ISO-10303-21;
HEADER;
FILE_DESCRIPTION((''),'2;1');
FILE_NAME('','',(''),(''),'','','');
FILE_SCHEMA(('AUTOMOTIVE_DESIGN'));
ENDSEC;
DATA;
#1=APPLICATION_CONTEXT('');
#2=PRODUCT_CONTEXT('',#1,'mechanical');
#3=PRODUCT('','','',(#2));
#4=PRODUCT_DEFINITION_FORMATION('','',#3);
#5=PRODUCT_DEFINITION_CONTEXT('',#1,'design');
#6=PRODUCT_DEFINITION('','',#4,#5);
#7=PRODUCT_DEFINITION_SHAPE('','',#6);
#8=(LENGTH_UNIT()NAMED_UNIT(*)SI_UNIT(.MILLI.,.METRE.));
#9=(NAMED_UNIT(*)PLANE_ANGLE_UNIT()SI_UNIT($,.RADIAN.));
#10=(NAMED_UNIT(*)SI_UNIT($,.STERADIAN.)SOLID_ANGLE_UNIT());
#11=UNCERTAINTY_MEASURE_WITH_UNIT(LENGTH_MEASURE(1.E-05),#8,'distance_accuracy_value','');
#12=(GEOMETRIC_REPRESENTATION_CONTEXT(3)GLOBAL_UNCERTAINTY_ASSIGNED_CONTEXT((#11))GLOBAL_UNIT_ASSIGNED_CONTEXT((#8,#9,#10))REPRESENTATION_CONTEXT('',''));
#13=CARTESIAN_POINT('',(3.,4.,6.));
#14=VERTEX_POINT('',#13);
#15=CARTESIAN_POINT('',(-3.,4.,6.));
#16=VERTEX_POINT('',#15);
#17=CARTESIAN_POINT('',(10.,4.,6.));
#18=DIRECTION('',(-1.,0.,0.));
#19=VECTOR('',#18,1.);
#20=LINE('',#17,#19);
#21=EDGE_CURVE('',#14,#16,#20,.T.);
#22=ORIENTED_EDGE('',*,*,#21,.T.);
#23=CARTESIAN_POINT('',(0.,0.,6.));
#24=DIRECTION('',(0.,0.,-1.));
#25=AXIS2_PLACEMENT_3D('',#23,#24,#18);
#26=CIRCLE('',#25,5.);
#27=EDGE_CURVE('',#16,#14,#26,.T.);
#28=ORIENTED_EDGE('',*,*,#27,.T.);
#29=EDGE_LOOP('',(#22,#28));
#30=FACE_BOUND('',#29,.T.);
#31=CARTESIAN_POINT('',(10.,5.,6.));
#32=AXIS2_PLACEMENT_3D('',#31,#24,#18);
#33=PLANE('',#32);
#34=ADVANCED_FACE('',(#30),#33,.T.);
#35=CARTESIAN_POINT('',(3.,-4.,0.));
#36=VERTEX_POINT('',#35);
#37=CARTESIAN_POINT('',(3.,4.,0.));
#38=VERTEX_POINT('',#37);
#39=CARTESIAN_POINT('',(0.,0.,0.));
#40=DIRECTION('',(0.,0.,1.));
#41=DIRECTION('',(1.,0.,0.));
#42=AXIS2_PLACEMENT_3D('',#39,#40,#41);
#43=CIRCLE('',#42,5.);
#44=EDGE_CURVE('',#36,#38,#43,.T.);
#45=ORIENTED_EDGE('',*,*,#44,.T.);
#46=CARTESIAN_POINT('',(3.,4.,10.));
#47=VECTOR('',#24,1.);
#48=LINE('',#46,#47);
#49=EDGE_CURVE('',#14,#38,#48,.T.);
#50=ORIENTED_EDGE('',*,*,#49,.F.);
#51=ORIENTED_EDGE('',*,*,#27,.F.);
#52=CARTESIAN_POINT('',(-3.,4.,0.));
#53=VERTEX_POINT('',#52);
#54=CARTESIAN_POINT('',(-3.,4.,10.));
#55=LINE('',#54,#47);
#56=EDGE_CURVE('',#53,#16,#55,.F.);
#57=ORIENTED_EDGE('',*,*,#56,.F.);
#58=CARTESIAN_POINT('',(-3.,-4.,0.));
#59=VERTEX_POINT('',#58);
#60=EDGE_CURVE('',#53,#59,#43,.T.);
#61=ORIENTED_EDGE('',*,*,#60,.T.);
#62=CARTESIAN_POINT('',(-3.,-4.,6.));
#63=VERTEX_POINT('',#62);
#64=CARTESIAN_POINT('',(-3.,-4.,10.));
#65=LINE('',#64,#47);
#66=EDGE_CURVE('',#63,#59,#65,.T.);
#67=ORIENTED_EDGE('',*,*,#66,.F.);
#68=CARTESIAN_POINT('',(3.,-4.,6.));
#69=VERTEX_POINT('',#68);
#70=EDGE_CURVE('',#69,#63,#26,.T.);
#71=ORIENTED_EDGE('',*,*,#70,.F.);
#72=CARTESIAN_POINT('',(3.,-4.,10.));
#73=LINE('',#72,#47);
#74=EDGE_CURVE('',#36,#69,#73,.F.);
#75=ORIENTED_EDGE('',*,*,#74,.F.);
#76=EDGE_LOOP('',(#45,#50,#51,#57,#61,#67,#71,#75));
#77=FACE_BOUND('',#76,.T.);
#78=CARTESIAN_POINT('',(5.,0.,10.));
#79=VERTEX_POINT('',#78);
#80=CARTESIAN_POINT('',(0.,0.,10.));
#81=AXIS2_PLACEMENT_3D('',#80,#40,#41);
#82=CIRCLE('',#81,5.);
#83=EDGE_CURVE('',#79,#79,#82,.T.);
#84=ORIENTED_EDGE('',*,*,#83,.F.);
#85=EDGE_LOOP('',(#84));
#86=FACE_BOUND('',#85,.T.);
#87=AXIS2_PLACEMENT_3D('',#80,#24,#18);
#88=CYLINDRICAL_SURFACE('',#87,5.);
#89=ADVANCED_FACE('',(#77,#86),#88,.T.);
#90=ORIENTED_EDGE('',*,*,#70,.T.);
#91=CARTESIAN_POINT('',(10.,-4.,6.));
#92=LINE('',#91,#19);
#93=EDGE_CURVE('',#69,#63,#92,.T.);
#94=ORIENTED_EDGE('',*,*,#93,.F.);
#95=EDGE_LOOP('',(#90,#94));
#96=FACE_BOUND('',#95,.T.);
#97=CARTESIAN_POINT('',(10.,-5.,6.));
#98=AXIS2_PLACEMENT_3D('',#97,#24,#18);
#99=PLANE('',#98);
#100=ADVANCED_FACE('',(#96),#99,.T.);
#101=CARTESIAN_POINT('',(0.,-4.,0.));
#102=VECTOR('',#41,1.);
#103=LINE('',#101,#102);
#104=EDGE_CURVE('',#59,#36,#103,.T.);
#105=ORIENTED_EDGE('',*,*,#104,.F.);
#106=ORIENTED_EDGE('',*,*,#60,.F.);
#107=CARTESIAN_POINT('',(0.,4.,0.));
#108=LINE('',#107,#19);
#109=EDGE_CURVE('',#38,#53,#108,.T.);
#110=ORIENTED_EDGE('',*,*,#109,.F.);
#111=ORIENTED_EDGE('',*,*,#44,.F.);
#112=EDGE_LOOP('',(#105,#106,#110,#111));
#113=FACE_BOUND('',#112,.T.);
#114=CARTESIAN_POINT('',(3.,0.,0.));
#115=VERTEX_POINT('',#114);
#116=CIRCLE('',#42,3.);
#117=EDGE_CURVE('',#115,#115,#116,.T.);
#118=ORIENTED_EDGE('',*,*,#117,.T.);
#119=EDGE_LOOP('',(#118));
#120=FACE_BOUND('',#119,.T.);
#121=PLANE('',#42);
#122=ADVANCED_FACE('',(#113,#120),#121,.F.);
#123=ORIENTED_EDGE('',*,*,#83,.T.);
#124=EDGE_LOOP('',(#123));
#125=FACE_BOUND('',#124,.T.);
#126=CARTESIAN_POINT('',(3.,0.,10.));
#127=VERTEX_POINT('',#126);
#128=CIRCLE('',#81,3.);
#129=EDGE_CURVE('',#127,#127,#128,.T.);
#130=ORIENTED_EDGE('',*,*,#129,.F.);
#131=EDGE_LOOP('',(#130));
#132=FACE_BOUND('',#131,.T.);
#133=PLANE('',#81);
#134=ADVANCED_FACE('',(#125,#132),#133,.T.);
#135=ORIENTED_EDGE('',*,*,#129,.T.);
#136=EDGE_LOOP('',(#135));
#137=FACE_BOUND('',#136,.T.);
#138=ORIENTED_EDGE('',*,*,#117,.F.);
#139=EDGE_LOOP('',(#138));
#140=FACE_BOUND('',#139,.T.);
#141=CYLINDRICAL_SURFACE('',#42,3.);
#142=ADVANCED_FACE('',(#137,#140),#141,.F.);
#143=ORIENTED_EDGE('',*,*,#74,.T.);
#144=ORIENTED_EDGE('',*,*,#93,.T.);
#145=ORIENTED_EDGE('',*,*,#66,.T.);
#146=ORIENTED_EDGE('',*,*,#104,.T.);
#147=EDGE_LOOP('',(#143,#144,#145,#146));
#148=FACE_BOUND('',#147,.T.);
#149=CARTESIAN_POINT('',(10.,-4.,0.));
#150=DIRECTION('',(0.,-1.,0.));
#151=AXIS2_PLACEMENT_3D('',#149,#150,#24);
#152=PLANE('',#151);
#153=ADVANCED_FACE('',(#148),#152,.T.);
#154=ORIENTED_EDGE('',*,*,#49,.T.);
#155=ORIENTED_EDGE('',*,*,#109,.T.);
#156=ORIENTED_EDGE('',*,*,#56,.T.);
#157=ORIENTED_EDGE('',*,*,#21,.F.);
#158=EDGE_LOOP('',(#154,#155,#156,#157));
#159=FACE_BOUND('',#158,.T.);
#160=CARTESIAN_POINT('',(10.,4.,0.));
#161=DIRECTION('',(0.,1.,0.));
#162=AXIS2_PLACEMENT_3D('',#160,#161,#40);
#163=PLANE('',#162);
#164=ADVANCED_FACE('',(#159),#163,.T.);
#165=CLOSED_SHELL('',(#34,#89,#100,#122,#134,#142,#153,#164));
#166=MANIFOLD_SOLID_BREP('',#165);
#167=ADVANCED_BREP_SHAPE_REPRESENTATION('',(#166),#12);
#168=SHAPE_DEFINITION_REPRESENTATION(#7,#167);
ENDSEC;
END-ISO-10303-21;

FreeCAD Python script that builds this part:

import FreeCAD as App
import Part
import Sketcher
from FreeCAD import Vector
Q = App.Units.Quantity

doc = App.newDocument("Part")
params = doc.addObject("Spreadsheet::Sheet", "Params")
for row, (alias, value) in enumerate([
    ("sketch1_diameter", "10 mm"),
    ("pad1_length", "10 mm"),
    ("sketch2_diameter", "6 mm"),
    ("pocket1_length", "10 mm"),
    ("sketch3_width", "1 mm"),
    ("sketch3_height", "6 mm"),
], start=1):
    params.set(f"A{row}", alias)
    params.set(f"B{row}", "=" + value)
    params.setAlias(f"B{row}", alias)

body = doc.addObject("PartDesign::Body", "Body")

# Sketch on XY plane
sketch1 = body.newObject("Sketcher::SketchObject", "Sketch")
sketch1.AttachmentSupport = (doc.getObject("XY_Plane"), [""])
sketch1.MapMode = "FlatFace"
sketch1.addGeometry(Part.Circle(Vector(0, 0, 0), Vector(0, 0, 1), 5), False)
sketch1.addConstraint([
    Sketcher.Constraint("Coincident", 0, 3, -1, 1),
    Sketcher.Constraint("Diameter", 0, Q("10 mm")),
])
sketch1.setExpression("Constraints[1]", "Params.sketch1_diameter")
pad1 = body.newObject("PartDesign::Pad", "Pad")
pad1.Profile = sketch1
pad1.setExpression("Length", "Params.pad1_length")

# Sketch on XY plane
sketch2 = body.newObject("Sketcher::SketchObject", "Sketch001")
sketch2.AttachmentSupport = (doc.getObject("XY_Plane"), [""])
sketch2.MapMode = "FlatFace"
sketch2.AttachmentOffset = App.Placement(Vector(0, 0, 10), App.Rotation())
sketch2.addGeometry(Part.Circle(Vector(0, 0, 0), Vector(0, 0, 1), 3), False)
sketch2.addConstraint([
    Sketcher.Constraint("Coincident", 0, 3, -1, 1),
    Sketcher.Constraint("Diameter", 0, Q("6 mm")),
])
sketch2.setExpression("Constraints[1]", "Params.sketch2_diameter")
pocket1 = body.newObject("PartDesign::Pocket", "Pocket")
pocket1.Profile = sketch2
pocket1.setExpression("Length", "Params.pocket1_length")

# Sketch on YZ plane
sketch3 = body.newObject("Sketcher::SketchObject", "Sketch002")
sketch3.AttachmentSupport = (doc.getObject("YZ_Plane"), [""])
sketch3.MapMode = "FlatFace"
sketch3.addGeometry([
    Part.LineSegment(Vector(5, 6, 0), Vector(4, 6, 0)),  # 0
    Part.LineSegment(Vector(4, 6, 0), Vector(4, 0, 0)),  # 1
    Part.LineSegment(Vector(4, 0, 0), Vector(5, 0, 0)),  # 2
    Part.LineSegment(Vector(5, 0, 0), Vector(5, 6, 0)),  # 3
    Part.LineSegment(Vector(-4, 6, 0), Vector(-5, 6, 0)),  # 4
    Part.LineSegment(Vector(-5, 6, 0), Vector(-5, 0, 0)),  # 5
    Part.LineSegment(Vector(-5, 0, 0), Vector(-4, 0, 0)),  # 6
    Part.LineSegment(Vector(-4, 0, 0), Vector(-4, 6, 0)),  # 7
], False)
sketch3.addConstraint([
    Sketcher.Constraint("Coincident", 0, 2, 1, 1),
    Sketcher.Constraint("Coincident", 1, 2, 2, 1),
    Sketcher.Constraint("Coincident", 2, 2, 3, 1),
    Sketcher.Constraint("Coincident", 3, 2, 0, 1),
    Sketcher.Constraint("Coincident", 4, 2, 5, 1),
    Sketcher.Constraint("Coincident", 5, 2, 6, 1),
    Sketcher.Constraint("Coincident", 6, 2, 7, 1),
    Sketcher.Constraint("Coincident", 7, 2, 4, 1),
    Sketcher.Constraint("Horizontal", 0),
    Sketcher.Constraint("Vertical", 1),
    Sketcher.Constraint("Horizontal", 2),
    Sketcher.Constraint("Vertical", 3),
    Sketcher.Constraint("Horizontal", 4),
    Sketcher.Constraint("Vertical", 5),
    Sketcher.Constraint("Horizontal", 6),
    Sketcher.Constraint("Vertical", 7),
    Sketcher.Constraint("Symmetric", 2, 2, 5, 2, -1, 1),
    Sketcher.Constraint("Symmetric", 1, 2, 6, 2, -2),
    Sketcher.Constraint("Horizontal", 3, 2, 4, 2),
    Sketcher.Constraint("DistanceX", 0, 2, 0, 1, Q("1 mm")),
    Sketcher.Constraint("DistanceY", 1, 2, 1, 1, Q("6 mm")),
    Sketcher.Constraint("DistanceX", -1, 1, 0, 2, Q("4 mm")),
])
sketch3.setExpression("Constraints[19]", "Params.sketch3_width")
sketch3.setExpression("Constraints[20]", "Params.sketch3_height")
pocket2 = body.newObject("PartDesign::Pocket", "Pocket001")
pocket2.Profile = sketch3
pocket2.Type = "ThroughAll"
pocket2.Midplane = True

doc.recompute()
